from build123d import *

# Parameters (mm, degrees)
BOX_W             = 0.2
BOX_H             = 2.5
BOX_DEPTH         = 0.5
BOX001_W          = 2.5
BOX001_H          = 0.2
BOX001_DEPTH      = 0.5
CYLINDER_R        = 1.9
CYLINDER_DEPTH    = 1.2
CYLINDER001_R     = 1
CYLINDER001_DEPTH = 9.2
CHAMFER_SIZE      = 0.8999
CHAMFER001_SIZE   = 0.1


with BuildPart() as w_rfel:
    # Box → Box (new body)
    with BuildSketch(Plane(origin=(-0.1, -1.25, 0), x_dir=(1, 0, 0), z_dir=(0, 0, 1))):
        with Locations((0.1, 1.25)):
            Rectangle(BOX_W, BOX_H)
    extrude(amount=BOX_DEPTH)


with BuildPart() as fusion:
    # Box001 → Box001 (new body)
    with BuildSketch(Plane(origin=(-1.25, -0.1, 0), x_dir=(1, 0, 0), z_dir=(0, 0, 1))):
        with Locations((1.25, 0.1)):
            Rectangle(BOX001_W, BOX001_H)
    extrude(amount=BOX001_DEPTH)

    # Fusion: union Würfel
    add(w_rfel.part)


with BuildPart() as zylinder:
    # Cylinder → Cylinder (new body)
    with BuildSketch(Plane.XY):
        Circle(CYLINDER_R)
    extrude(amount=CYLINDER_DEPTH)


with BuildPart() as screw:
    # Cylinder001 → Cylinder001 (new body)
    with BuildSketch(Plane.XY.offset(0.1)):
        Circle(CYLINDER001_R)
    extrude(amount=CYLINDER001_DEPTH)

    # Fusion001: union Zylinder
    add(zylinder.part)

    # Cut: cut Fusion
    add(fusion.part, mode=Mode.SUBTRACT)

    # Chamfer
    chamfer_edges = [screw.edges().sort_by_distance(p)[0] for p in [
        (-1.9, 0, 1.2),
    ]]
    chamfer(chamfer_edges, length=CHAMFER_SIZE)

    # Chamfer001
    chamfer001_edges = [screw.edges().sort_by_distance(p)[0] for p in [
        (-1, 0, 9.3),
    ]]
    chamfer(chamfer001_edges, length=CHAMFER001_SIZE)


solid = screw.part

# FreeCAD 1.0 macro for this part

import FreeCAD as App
import Part
import Sketcher


def edges_at(feature, points):
    """Names of the edges that pass closest to the given points."""
    edges = feature.Shape.Edges
    near = lambda p: min(range(len(edges)), key=lambda i: edges[i].distToShape(Part.Vertex(*p))[0])
    return sorted({f"Edge{near(p) + 1}" for p in points})

doc = App.newDocument("Part")
params = doc.addObject("Spreadsheet::Sheet", "Params")
for row, (alias, value) in enumerate([
    ("sketch1_width", "0.2 mm"),
    ("sketch1_height", "2.5 mm"),
    ("pad1_length", "0.5 mm"),
    ("sketch2_width", "2.5 mm"),
    ("sketch2_height", "0.2 mm"),
    ("pad2_length", "0.5 mm"),
    ("sketch3_diameter", "3.8 mm"),
    ("pad3_length", "1.2 mm"),
    ("sketch4_diameter", "2 mm"),
    ("pad4_length", "9.2 mm"),
    ("chamfer_size", "0.8999 mm"),
    ("chamfer2_size", "0.1 mm"),
], start=1):
    params.set(f"A{row}", alias)
    params.set(f"B{row}", "=" + value)
    params.setAlias(f"B{row}", alias)

body = doc.addObject("PartDesign::Body", "Body")

sketch1 = body.newObject("Sketcher::SketchObject", "Sketch")
sketch1.AttachmentSupport = (doc.getObject("XY_Plane"), [""])
sketch1.MapMode = "FlatFace"
sketch1.addGeometry(Part.LineSegment(App.Vector(-0.1, 1.25, 0), App.Vector(-0.1, -1.25, 0)), False)
sketch1.addGeometry(Part.LineSegment(App.Vector(-0.1, -1.25, 0), App.Vector(0.1, -1.25, 0)), False)
sketch1.addGeometry(Part.LineSegment(App.Vector(0.1, -1.25, 0), App.Vector(0.1, 1.25, 0)), False)
sketch1.addGeometry(Part.LineSegment(App.Vector(0.1, 1.25, 0), App.Vector(-0.1, 1.25, 0)), False)
sketch1.addConstraint(Sketcher.Constraint("Coincident", 0, 2, 1, 1))
sketch1.addConstraint(Sketcher.Constraint("Coincident", 1, 2, 2, 1))
sketch1.addConstraint(Sketcher.Constraint("Coincident", 2, 2, 3, 1))
sketch1.addConstraint(Sketcher.Constraint("Coincident", 3, 2, 0, 1))
sketch1.addConstraint(Sketcher.Constraint("Vertical", 0))
sketch1.addConstraint(Sketcher.Constraint("Horizontal", 1))
sketch1.addConstraint(Sketcher.Constraint("Vertical", 2))
sketch1.addConstraint(Sketcher.Constraint("Horizontal", 3))
sketch1.addConstraint(Sketcher.Constraint("Symmetric", 0, 2, 2, 2, -1, 1))
sketch1.addConstraint(Sketcher.Constraint("DistanceX", 1, 1, 1, 2, 0.2))
sketch1.addConstraint(Sketcher.Constraint("DistanceY", 0, 2, 0, 1, 2.5))
sketch1.setExpression("Constraints[9]", "Params.sketch1_width")
sketch1.setExpression("Constraints[10]", "Params.sketch1_height")
pad1 = body.newObject("PartDesign::Pad", "Pad")
pad1.Profile = sketch1
pad1.setExpression("Length", "Params.pad1_length")
body2 = doc.addObject("PartDesign::Body", "Body001")

sketch2 = body2.newObject("Sketcher::SketchObject", "Sketch001")
sketch2.AttachmentSupport = (doc.getObject("XY_Plane001"), [""])
sketch2.MapMode = "FlatFace"
sketch2.addGeometry(Part.LineSegment(App.Vector(-1.25, 0.1, 0), App.Vector(-1.25, -0.1, 0)), False)
sketch2.addGeometry(Part.LineSegment(App.Vector(-1.25, -0.1, 0), App.Vector(1.25, -0.1, 0)), False)
sketch2.addGeometry(Part.LineSegment(App.Vector(1.25, -0.1, 0), App.Vector(1.25, 0.1, 0)), False)
sketch2.addGeometry(Part.LineSegment(App.Vector(1.25, 0.1, 0), App.Vector(-1.25, 0.1, 0)), False)
sketch2.addConstraint(Sketcher.Constraint("Coincident", 0, 2, 1, 1))
sketch2.addConstraint(Sketcher.Constraint("Coincident", 1, 2, 2, 1))
sketch2.addConstraint(Sketcher.Constraint("Coincident", 2, 2, 3, 1))
sketch2.addConstraint(Sketcher.Constraint("Coincident", 3, 2, 0, 1))
sketch2.addConstraint(Sketcher.Constraint("Vertical", 0))
sketch2.addConstraint(Sketcher.Constraint("Horizontal", 1))
sketch2.addConstraint(Sketcher.Constraint("Vertical", 2))
sketch2.addConstraint(Sketcher.Constraint("Horizontal", 3))
sketch2.addConstraint(Sketcher.Constraint("Symmetric", 0, 2, 2, 2, -1, 1))
sketch2.addConstraint(Sketcher.Constraint("DistanceX", 1, 1, 1, 2, 2.5))
sketch2.addConstraint(Sketcher.Constraint("DistanceY", 0, 2, 0, 1, 0.2))
sketch2.setExpression("Constraints[9]", "Params.sketch2_width")
sketch2.setExpression("Constraints[10]", "Params.sketch2_height")
pad2 = body2.newObject("PartDesign::Pad", "Pad001")
pad2.Profile = sketch2
pad2.setExpression("Length", "Params.pad2_length")
doc.recompute()

boolean = body2.newObject("PartDesign::Boolean", "Boolean")
boolean.Type = "Fuse"
boolean.addObjects([body])
body3 = doc.addObject("PartDesign::Body", "Body002")

sketch3 = body3.newObject("Sketcher::SketchObject", "Sketch002")
sketch3.AttachmentSupport = (doc.getObject("XY_Plane002"), [""])
sketch3.MapMode = "FlatFace"
sketch3.addGeometry(Part.Circle(App.Vector(0, 0, 0), App.Vector(0, 0, 1), 1.9), False)
sketch3.addConstraint(Sketcher.Constraint("Coincident", 0, 3, -1, 1))
sketch3.addConstraint(Sketcher.Constraint("Diameter", 0, 3.8))
sketch3.setExpression("Constraints[1]", "Params.sketch3_diameter")
pad3 = body3.newObject("PartDesign::Pad", "Pad002")
pad3.Profile = sketch3
pad3.setExpression("Length", "Params.pad3_length")
body4 = doc.addObject("PartDesign::Body", "Body003")

sketch4 = body4.newObject("Sketcher::SketchObject", "Sketch003")
sketch4.AttachmentSupport = (doc.getObject("XY_Plane003"), [""])
sketch4.MapMode = "FlatFace"
sketch4.AttachmentOffset = App.Placement(App.Vector(0, 0, 0.1), App.Rotation())
sketch4.addGeometry(Part.Circle(App.Vector(0, 0, 0), App.Vector(0, 0, 1), 1), False)
sketch4.addConstraint(Sketcher.Constraint("Coincident", 0, 3, -1, 1))
sketch4.addConstraint(Sketcher.Constraint("Diameter", 0, 2.0))
sketch4.setExpression("Constraints[1]", "Params.sketch4_diameter")
pad4 = body4.newObject("PartDesign::Pad", "Pad003")
pad4.Profile = sketch4
pad4.setExpression("Length", "Params.pad4_length")
doc.recompute()

boolean2 = body4.newObject("PartDesign::Boolean", "Boolean001")
boolean2.Type = "Fuse"
boolean2.addObjects([body3])
doc.recompute()

boolean3 = body4.newObject("PartDesign::Boolean", "Boolean002")
boolean3.Type = "Cut"
boolean3.addObjects([body2])
doc.recompute()

chamfer = body4.newObject("PartDesign::Chamfer", "Chamfer")
chamfer.Base = (boolean3, edges_at(boolean3, [(-1.9, 0, 1.2)]))
chamfer.setExpression("Size", "Params.chamfer_size")
doc.recompute()

chamfer2 = body4.newObject("PartDesign::Chamfer", "Chamfer001")
chamfer2.Base = (chamfer, edges_at(chamfer, [(-1, 0, 9.3)]))
chamfer2.setExpression("Size", "Params.chamfer2_size")

doc.recompute()
